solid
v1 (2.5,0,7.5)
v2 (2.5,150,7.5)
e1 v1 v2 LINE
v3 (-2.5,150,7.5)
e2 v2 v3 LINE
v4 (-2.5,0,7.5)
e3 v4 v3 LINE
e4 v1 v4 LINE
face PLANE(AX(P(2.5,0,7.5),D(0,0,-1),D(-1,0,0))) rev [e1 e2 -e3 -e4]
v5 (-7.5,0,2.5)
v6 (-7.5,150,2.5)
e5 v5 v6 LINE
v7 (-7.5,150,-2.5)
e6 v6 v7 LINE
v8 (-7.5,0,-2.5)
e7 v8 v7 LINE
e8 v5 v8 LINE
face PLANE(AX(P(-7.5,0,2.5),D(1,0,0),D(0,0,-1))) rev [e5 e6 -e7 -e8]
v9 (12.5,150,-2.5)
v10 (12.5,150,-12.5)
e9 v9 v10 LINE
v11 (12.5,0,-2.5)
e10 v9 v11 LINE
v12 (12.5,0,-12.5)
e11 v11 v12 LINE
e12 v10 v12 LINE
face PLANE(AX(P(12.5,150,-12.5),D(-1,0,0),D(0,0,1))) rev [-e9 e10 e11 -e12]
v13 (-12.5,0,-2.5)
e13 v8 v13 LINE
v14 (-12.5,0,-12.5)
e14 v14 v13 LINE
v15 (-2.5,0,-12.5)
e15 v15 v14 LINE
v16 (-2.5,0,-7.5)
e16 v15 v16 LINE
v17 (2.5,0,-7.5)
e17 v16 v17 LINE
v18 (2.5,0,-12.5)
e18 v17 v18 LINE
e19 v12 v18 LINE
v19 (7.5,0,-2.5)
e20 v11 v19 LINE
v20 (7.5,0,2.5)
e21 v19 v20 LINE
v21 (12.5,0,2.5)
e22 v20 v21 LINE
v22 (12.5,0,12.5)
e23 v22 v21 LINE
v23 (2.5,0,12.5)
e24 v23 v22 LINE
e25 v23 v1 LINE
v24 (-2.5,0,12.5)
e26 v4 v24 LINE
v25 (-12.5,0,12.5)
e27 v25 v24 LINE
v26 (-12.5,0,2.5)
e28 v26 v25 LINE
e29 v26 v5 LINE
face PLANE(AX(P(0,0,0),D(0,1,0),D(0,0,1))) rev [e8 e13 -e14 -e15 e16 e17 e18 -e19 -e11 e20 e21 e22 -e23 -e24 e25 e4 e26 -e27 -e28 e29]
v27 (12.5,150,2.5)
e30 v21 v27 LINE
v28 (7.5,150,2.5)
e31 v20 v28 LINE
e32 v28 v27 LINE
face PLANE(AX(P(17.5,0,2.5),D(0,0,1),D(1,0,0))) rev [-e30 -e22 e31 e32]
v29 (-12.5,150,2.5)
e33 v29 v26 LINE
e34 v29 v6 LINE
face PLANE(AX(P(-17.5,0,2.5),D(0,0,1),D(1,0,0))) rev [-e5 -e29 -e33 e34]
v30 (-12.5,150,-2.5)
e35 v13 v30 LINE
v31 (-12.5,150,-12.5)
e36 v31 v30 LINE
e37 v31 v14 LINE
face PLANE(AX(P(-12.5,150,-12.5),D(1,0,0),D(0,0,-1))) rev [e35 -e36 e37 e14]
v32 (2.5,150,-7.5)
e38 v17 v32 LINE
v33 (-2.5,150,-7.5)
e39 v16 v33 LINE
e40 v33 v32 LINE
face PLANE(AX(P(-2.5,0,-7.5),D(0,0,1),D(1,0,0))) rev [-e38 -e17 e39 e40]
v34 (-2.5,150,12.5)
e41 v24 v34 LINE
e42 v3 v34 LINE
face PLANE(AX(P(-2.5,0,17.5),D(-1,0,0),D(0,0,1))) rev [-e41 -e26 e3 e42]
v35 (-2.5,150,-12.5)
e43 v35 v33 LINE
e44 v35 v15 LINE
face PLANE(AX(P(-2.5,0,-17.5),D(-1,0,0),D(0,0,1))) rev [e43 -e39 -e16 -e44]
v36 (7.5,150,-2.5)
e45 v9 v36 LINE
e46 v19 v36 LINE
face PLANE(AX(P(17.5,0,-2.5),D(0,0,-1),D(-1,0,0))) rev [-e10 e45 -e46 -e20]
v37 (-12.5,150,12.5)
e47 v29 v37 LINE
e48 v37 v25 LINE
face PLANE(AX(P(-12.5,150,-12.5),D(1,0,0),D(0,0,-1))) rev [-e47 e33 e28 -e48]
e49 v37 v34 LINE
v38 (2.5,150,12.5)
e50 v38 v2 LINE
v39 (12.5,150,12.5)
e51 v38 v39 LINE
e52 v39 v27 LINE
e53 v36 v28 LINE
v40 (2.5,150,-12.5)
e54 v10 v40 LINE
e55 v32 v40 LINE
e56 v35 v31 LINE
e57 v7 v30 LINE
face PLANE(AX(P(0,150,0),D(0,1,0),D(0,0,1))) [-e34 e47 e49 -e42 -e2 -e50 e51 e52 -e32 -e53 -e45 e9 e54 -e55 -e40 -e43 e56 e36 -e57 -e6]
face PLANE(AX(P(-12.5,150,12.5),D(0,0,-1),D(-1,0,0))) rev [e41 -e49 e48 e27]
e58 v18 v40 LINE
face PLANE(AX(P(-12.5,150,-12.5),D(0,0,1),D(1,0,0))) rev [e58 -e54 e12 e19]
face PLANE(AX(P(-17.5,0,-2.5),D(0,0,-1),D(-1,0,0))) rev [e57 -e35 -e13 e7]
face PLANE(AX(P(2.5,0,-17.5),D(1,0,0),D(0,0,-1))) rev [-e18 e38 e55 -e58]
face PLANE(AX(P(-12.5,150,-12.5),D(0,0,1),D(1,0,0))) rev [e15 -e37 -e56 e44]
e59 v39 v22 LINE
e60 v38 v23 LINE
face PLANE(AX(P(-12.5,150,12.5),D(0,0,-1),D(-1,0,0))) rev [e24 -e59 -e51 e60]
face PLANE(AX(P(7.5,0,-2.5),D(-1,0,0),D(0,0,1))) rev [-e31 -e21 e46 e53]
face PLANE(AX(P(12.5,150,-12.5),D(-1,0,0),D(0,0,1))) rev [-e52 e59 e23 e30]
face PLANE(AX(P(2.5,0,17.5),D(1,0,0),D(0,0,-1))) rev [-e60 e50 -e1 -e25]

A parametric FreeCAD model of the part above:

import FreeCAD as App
import Part
import Sketcher
from FreeCAD import Vector

doc = App.newDocument("Part")
body = doc.addObject("PartDesign::Body", "Body")

sketch1 = body.newObject("Sketcher::SketchObject", "Sketch")
sketch1.AttachmentSupport = (doc.getObject("XZ_Plane"), [""])
sketch1.MapMode = "FlatFace"
sketch1.addGeometry(Part.LineSegment(Vector(-12, -12, 0), Vector(-12, 12, 0)), False)
sketch1.addGeometry(Part.LineSegment(Vector(-12, 12, 0), Vector(12, 12, 0)), False)
sketch1.addGeometry(Part.LineSegment(Vector(12, 12, 0), Vector(12, -12, 0)), False)
sketch1.addGeometry(Part.LineSegment(Vector(12, -12, 0), Vector(-12, -12, 0)), False)
sketch1.addConstraint(Sketcher.Constraint("Coincident", 0, 2, 1, 1))
sketch1.addConstraint(Sketcher.Constraint("Coincident", 1, 2, 2, 1))
sketch1.addConstraint(Sketcher.Constraint("Coincident", 2, 2, 3, 1))
sketch1.addConstraint(Sketcher.Constraint("Coincident", 3, 2, 0, 1))
sketch1.addConstraint(Sketcher.Constraint("Vertical", 0))
sketch1.addConstraint(Sketcher.Constraint("Horizontal", 1))
sketch1.addConstraint(Sketcher.Constraint("Vertical", 2))
sketch1.addConstraint(Sketcher.Constraint("Horizontal", 3))
sketch1.addConstraint(Sketcher.Constraint("Symmetric", 0, 2, 2, 2, -1, 1))
sketch1.addConstraint(Sketcher.Constraint("Equal", 3, 0))
sketch1.addConstraint(Sketcher.Constraint("DistanceX", 1, 1, 1, 2, 25.0))
pad1 = body.newObject("PartDesign::Pad", "Pad")
pad1.Profile = sketch1
pad1.Length = 150
pad1.Reversed = True

sketch2 = body.newObject("Sketcher::SketchObject", "Sketch001")
sketch2.AttachmentSupport = (doc.getObject("XZ_Plane"), [""])
sketch2.MapMode = "FlatFace"
sketch2.AttachmentOffset = App.Placement(Vector(0, 0, -150), App.Rotation())
sketch2.addGeometry(Part.LineSegment(Vector(-2, -18, 0), Vector(-2, -8, 0)), False)
sketch2.addGeometry(Part.LineSegment(Vector(-2, -8, 0), Vector(2, -8, 0)), False)
sketch2.addGeometry(Part.LineSegment(Vector(2, -8, 0), Vector(2, -18, 0)), False)
sketch2.addGeometry(Part.LineSegment(Vector(2, -18, 0), Vector(-2, -18, 0)), False)
sketch2.addGeometry(Part.LineSegment(Vector(8, -2, 0), Vector(8, 2, 0)), False)
sketch2.addGeometry(Part.LineSegment(Vector(8, 2, 0), Vector(18, 2, 0)), False)
sketch2.addGeometry(Part.LineSegment(Vector(18, 2, 0), Vector(18, -2, 0)), False)
sketch2.addGeometry(Part.LineSegment(Vector(18, -2, 0), Vector(8, -2, 0)), False)
sketch2.addGeometry(Part.LineSegment(Vector(-2, 8, 0), Vector(-2, 18, 0)), False)
sketch2.addGeometry(Part.LineSegment(Vector(-2, 18, 0), Vector(2, 18, 0)), False)
sketch2.addGeometry(Part.LineSegment(Vector(2, 18, 0), Vector(2, 8, 0)), False)
sketch2.addGeometry(Part.LineSegment(Vector(2, 8, 0), Vector(-2, 8, 0)), False)
sketch2.addGeometry(Part.LineSegment(Vector(-18, -2, 0), Vector(-18, 2, 0)), False)
sketch2.addGeometry(Part.LineSegment(Vector(-18, 2, 0), Vector(-8, 2, 0)), False)
sketch2.addGeometry(Part.LineSegment(Vector(-8, 2, 0), Vector(-8, -2, 0)), False)
sketch2.addGeometry(Part.LineSegment(Vector(-8, -2, 0), Vector(-18, -2, 0)), False)
sketch2.addConstraint(Sketcher.Constraint("Coincident", 0, 2, 1, 1))
sketch2.addConstraint(Sketcher.Constraint("Coincident", 1, 2, 2, 1))
sketch2.addConstraint(Sketcher.Constraint("Coincident", 2, 2, 3, 1))
sketch2.addConstraint(Sketcher.Constraint("Coincident", 3, 2, 0, 1))
sketch2.addConstraint(Sketcher.Constraint("Coincident", 4, 2, 5, 1))
sketch2.addConstraint(Sketcher.Constraint("Coincident", 5, 2, 6, 1))
sketch2.addConstraint(Sketcher.Constraint("Coincident", 6, 2, 7, 1))
sketch2.addConstraint(Sketcher.Constraint("Coincident", 7, 2, 4, 1))
sketch2.addConstraint(Sketcher.Constraint("Coincident", 8, 2, 9, 1))
sketch2.addConstraint(Sketcher.Constraint("Coincident", 9, 2, 10, 1))
sketch2.addConstraint(Sketcher.Constraint("Coincident", 10, 2, 11, 1))
sketch2.addConstraint(Sketcher.Constraint("Coincident", 11, 2, 8, 1))
sketch2.addConstraint(Sketcher.Constraint("Coincident", 12, 2, 13, 1))
sketch2.addConstraint(Sketcher.Constraint("Coincident", 13, 2, 14, 1))
sketch2.addConstraint(Sketcher.Constraint("Coincident", 14, 2, 15, 1))
sketch2.addConstraint(Sketcher.Constraint("Coincident", 15, 2, 12, 1))
sketch2.addConstraint(Sketcher.Constraint("Vertical", 0))
sketch2.addConstraint(Sketcher.Constraint("Horizontal", 1))
sketch2.addConstraint(Sketcher.Constraint("Vertical", 2))
sketch2.addConstraint(Sketcher.Constraint("Horizontal", 3))
sketch2.addConstraint(Sketcher.Constraint("Vertical", 4))
sketch2.addConstraint(Sketcher.Constraint("Horizontal", 5))
sketch2.addConstraint(Sketcher.Constraint("Vertical", 6))
sketch2.addConstraint(Sketcher.Constraint("Horizontal", 7))
sketch2.addConstraint(Sketcher.Constraint("Vertical", 8))
sketch2.addConstraint(Sketcher.Constraint("Horizontal", 9))
sketch2.addConstraint(Sketcher.Constraint("Vertical", 10))
sketch2.addConstraint(Sketcher.Constraint("Horizontal", 11))
sketch2.addConstraint(Sketcher.Constraint("Vertical", 12))
sketch2.addConstraint(Sketcher.Constraint("Horizontal", 13))
sketch2.addConstraint(Sketcher.Constraint("Vertical", 14))
sketch2.addConstraint(Sketcher.Constraint("Horizontal", 15))
sketch2.addConstraint(Sketcher.Constraint("Symmetric", 2, 2, 8, 2, -1, 1))
sketch2.addConstraint(Sketcher.Constraint("Symmetric", 0, 2, 10, 2, -1, 1))
sketch2.addConstraint(Sketcher.Constraint("Symmetric", 6, 2, 12, 2, -1, 1))
sketch2.addConstraint(Sketcher.Constraint("Symmetric", 4, 2, 14, 2, -1, 1))
sketch2.addConstraint(Sketcher.Constraint("Horizontal", 5, 2, 12, 2))
sketch2.addConstraint(Sketcher.Constraint("Vertical", 3, 2, 8, 2))
sketch2.addConstraint(Sketcher.Constraint("Equal", 15, 0))
sketch2.addConstraint(Sketcher.Constraint("Equal", 11, 4))
sketch2.addConstraint(Sketcher.Constraint("DistanceX", 1, 1, 1, 2, 5.0))
sketch2.addConstraint(Sketcher.Constraint("DistanceX", 5, 1, 5, 2, 10.0))
sketch2.addConstraint(Sketcher.Constraint("DistanceX", 1, 2, 4, 2, 5.0))
sketch2.addConstraint(Sketcher.Constraint("DistanceY", 1, 2, 4, 2, 10.0))
pocket1 = body.newObject("PartDesign::Pocket", "Pocket")
pocket1.Profile = sketch2
pocket1.Length = 150
pocket1.Reversed = True

doc.recompute()
